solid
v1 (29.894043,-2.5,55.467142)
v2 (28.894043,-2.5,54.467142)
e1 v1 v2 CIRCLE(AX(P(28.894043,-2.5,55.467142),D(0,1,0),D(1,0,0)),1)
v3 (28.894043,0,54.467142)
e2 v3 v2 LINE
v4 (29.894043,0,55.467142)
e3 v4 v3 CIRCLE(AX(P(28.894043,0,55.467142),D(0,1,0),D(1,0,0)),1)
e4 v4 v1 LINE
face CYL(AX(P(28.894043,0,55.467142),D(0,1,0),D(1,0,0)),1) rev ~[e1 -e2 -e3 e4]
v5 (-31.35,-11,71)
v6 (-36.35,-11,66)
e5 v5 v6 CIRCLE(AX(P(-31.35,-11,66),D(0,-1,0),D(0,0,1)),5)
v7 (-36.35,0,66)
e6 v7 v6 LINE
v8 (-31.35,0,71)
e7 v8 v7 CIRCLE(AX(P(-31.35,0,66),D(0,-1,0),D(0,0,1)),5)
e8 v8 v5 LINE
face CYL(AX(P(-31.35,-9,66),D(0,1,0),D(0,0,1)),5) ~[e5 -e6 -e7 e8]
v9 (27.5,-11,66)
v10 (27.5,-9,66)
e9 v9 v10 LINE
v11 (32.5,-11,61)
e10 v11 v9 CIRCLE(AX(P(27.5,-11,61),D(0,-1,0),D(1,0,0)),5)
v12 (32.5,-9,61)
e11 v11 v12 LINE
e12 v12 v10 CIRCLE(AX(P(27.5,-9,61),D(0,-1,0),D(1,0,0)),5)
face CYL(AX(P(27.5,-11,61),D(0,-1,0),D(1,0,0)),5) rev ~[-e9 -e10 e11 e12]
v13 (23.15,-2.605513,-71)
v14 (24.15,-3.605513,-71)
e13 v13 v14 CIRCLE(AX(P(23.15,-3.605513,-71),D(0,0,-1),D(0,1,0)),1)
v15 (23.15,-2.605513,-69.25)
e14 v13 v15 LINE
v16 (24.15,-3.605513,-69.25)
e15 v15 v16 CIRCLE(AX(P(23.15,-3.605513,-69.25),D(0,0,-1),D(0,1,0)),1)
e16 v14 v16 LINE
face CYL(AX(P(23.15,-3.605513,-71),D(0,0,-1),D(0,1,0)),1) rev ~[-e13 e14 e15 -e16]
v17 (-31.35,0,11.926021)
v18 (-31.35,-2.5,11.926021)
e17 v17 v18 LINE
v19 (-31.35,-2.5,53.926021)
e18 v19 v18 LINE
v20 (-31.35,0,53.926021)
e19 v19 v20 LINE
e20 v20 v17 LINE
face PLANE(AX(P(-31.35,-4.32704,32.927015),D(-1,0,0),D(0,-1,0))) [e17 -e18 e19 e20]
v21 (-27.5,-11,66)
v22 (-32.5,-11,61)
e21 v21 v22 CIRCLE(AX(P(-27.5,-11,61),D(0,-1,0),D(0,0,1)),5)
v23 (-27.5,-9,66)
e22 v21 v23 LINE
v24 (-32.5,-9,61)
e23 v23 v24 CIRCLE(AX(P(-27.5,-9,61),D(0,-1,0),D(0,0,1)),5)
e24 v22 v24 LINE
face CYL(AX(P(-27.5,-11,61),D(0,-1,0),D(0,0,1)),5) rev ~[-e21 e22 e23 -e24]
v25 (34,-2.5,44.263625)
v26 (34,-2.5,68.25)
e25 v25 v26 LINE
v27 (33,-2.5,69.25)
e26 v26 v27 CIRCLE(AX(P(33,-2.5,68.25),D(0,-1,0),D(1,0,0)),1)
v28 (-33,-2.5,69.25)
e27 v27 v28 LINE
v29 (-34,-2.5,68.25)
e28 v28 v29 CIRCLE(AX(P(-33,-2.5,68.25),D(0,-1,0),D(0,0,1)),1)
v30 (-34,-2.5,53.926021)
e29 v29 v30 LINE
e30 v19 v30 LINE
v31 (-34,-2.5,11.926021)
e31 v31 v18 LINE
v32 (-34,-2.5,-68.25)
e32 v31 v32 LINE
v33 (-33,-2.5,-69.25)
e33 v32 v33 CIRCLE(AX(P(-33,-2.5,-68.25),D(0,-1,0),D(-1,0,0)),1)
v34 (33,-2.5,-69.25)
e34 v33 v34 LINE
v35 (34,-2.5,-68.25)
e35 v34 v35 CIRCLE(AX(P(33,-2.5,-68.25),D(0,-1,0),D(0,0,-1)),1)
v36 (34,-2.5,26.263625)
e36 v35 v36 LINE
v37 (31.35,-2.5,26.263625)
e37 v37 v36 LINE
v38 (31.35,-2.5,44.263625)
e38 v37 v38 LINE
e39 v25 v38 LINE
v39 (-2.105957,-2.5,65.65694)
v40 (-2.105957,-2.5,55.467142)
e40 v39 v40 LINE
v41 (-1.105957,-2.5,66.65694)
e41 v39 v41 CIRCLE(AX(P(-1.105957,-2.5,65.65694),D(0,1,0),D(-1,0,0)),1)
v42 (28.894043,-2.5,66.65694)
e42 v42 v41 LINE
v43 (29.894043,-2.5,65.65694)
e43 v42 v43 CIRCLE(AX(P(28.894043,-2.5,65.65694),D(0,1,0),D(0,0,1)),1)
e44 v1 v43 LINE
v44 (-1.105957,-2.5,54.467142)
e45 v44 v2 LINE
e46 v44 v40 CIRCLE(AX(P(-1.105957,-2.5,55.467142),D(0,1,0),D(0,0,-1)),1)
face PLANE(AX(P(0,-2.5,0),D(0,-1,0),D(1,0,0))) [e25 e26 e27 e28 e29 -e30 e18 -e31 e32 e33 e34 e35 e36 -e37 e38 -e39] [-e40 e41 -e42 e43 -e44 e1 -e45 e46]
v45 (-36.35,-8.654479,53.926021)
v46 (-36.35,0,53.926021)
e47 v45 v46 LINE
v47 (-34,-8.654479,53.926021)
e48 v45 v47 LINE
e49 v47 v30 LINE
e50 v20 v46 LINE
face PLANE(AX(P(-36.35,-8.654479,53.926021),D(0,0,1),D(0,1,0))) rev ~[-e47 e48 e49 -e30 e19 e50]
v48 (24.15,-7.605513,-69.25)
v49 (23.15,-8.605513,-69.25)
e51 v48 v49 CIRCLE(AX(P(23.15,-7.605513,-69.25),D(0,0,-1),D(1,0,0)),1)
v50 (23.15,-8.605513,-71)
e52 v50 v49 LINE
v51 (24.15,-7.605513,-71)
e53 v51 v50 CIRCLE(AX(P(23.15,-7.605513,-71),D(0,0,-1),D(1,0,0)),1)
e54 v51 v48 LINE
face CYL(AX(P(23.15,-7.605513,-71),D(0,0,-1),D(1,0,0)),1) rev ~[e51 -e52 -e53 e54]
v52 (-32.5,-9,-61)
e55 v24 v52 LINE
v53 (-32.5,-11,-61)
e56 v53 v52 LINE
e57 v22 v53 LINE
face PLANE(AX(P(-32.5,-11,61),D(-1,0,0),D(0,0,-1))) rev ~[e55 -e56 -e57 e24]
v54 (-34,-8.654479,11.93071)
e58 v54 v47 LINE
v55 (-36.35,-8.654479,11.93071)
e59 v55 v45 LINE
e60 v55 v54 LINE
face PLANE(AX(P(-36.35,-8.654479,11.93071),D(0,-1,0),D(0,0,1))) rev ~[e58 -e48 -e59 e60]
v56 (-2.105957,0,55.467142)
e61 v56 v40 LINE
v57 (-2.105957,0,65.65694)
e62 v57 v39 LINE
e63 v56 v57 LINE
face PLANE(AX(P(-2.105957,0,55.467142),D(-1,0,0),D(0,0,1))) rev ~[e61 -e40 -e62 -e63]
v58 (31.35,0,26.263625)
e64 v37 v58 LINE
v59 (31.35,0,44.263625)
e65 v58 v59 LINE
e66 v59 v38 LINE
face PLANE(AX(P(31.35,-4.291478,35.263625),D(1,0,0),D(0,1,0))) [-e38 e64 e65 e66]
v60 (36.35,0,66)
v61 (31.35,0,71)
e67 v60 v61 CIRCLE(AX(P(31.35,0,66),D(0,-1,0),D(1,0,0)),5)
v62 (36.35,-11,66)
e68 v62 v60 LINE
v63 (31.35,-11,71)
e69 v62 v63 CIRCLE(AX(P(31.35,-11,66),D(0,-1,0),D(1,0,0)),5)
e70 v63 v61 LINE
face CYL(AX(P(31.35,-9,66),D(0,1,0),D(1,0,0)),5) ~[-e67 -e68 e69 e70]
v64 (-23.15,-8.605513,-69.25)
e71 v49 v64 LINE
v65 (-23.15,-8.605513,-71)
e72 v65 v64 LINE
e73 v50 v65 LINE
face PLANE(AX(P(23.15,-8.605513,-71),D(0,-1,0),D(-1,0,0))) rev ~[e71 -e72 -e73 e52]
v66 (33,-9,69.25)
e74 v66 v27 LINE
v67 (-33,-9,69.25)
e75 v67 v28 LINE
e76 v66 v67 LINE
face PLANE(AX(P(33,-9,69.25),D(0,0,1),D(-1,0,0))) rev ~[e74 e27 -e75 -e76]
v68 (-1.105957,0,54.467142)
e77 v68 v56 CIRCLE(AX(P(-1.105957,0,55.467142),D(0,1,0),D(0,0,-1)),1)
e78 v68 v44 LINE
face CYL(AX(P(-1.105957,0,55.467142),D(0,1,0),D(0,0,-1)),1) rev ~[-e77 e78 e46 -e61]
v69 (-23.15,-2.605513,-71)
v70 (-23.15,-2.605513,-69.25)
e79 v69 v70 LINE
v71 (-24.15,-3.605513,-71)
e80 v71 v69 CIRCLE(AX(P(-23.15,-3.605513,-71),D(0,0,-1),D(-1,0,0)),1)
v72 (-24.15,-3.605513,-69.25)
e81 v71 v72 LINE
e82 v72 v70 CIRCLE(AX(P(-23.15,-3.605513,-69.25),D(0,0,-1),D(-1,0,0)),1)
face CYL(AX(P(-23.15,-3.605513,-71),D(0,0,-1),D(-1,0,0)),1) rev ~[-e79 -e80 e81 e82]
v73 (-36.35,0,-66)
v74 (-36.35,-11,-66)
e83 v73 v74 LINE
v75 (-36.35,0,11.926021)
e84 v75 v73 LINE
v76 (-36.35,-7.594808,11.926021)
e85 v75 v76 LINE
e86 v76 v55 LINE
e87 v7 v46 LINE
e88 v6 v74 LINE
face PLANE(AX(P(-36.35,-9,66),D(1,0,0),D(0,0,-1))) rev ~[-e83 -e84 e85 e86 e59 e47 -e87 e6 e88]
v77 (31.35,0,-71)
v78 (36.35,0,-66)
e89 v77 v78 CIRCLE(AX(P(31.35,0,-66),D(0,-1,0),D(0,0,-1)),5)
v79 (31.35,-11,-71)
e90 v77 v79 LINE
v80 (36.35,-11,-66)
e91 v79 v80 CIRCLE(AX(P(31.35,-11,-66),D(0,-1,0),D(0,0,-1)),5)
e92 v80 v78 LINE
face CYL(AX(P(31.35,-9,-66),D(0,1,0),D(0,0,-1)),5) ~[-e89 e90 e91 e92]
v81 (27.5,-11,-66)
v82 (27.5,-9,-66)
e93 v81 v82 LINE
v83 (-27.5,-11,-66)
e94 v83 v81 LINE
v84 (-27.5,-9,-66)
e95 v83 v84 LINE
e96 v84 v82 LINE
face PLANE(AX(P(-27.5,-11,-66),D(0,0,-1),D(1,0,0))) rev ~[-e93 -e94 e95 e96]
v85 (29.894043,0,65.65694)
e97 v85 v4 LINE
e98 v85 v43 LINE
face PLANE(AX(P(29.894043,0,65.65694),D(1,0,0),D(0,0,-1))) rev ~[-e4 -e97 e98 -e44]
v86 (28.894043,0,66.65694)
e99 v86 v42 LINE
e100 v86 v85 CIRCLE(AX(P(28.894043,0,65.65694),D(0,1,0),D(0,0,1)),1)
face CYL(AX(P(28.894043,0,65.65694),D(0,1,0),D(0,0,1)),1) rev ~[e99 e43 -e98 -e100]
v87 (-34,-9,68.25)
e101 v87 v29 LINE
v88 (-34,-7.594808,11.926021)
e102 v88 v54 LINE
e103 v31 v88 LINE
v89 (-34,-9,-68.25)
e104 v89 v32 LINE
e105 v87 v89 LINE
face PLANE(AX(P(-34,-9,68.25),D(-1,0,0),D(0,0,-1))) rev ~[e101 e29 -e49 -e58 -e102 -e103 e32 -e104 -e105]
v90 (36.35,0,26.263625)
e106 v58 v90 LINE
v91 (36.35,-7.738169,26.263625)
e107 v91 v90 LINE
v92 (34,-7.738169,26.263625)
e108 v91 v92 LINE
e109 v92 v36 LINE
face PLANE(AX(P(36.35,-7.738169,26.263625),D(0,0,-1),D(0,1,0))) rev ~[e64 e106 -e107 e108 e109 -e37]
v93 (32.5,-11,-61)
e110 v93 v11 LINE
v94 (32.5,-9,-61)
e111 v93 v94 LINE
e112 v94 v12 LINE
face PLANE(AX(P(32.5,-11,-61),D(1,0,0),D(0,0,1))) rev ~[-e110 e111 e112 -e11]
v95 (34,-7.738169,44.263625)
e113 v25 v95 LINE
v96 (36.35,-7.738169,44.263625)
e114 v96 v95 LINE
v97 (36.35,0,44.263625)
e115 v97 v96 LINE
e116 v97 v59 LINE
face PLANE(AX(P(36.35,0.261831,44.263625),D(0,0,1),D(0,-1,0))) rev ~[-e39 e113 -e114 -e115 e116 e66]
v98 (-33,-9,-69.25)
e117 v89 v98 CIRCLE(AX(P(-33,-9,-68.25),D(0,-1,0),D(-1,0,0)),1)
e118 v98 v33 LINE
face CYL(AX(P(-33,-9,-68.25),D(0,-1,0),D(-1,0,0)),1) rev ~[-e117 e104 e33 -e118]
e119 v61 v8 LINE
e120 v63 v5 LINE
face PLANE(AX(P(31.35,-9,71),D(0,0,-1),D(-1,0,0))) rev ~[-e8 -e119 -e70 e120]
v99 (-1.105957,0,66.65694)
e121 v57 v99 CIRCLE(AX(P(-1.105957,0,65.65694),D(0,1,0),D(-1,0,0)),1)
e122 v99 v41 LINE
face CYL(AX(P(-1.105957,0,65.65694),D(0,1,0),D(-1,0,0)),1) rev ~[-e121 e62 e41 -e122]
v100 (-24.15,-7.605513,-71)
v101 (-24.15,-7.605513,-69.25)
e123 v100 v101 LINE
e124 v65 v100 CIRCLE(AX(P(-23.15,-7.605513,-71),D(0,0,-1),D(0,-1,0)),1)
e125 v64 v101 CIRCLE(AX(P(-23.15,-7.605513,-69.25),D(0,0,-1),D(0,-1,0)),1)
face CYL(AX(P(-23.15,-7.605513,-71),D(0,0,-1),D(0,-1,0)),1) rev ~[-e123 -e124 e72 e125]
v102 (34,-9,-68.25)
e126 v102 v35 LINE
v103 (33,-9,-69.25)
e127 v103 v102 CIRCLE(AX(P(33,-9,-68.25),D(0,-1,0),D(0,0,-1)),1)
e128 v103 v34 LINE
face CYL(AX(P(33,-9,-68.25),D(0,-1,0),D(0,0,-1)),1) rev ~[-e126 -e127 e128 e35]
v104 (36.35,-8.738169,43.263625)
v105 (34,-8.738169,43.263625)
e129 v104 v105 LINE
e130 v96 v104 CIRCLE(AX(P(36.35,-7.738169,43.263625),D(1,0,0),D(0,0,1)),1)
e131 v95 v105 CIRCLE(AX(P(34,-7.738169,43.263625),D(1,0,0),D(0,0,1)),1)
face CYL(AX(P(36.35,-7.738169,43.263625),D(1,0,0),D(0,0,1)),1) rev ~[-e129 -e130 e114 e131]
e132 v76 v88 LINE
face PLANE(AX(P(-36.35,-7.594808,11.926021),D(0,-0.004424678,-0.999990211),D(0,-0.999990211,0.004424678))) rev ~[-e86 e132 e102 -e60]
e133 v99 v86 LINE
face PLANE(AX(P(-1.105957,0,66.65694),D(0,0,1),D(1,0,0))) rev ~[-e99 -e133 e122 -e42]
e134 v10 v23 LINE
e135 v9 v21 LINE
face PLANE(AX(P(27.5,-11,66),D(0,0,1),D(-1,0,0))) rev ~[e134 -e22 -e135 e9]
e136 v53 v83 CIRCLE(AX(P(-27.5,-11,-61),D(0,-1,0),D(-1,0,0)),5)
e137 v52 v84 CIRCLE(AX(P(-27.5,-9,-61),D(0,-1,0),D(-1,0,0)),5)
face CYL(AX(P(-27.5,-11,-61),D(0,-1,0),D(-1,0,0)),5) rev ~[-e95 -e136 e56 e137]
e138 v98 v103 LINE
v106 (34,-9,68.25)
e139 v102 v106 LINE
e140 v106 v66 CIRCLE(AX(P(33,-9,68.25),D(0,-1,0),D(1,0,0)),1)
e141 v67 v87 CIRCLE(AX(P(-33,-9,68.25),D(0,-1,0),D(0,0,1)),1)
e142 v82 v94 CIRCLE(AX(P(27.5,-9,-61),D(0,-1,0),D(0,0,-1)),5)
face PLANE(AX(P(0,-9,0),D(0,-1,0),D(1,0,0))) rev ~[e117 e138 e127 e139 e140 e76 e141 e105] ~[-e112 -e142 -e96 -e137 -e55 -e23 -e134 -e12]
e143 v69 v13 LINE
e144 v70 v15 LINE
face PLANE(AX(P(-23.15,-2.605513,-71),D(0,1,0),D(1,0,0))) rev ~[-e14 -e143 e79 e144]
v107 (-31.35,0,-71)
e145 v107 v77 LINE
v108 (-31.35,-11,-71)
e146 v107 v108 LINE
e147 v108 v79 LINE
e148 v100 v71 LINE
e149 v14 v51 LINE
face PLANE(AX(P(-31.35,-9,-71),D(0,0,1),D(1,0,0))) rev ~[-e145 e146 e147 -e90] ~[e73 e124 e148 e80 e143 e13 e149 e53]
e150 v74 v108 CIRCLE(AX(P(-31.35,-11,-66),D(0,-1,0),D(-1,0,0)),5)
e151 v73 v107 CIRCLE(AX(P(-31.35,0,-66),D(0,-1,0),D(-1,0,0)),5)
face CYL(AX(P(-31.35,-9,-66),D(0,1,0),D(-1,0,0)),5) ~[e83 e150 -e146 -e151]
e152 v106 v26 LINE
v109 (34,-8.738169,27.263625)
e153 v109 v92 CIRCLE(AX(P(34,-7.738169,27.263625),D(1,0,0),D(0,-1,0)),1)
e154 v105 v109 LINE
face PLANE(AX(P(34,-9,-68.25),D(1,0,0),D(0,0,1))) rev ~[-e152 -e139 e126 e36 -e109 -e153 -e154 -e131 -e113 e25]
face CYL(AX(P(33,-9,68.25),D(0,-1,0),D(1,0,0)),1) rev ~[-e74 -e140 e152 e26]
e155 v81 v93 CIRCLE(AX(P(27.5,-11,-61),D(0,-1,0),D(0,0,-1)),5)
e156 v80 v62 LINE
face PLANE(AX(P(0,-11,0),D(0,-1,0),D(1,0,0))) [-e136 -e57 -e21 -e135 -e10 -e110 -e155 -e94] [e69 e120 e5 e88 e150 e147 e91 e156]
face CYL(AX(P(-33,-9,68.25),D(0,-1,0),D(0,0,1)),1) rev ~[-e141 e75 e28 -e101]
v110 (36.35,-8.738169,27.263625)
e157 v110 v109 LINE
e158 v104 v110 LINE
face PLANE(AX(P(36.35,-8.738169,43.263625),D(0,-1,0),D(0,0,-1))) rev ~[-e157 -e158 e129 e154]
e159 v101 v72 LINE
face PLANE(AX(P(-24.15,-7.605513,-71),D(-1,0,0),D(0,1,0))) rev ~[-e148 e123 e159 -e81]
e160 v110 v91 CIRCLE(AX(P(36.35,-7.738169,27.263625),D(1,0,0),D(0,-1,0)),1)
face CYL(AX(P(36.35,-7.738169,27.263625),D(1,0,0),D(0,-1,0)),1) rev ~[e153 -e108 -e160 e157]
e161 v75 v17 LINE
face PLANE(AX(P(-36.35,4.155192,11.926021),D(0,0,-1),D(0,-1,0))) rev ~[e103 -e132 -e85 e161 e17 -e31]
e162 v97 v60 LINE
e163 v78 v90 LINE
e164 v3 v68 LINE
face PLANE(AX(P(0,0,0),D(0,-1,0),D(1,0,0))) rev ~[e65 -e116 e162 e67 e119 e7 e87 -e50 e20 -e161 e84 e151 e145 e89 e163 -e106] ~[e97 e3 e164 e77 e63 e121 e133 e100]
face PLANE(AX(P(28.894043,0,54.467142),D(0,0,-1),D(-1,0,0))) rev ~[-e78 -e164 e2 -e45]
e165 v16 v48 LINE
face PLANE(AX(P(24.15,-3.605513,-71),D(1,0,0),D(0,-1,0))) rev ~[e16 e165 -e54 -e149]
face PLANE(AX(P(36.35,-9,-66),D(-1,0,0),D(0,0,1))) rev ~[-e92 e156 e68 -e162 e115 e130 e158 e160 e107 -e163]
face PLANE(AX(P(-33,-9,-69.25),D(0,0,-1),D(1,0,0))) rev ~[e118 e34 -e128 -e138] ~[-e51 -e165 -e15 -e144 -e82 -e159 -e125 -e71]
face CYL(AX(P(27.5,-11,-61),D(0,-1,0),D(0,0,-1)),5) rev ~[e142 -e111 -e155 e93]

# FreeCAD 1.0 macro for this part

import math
import FreeCAD as App
import Part
import Sketcher
from FreeCAD import Vector
Q = App.Units.Quantity

doc = App.newDocument("Part")
body = doc.addObject("PartDesign::Body", "Body")

sketch1 = body.newObject("Sketcher::SketchObject", "Sketch")
sketch1.AttachmentSupport = (doc.getObject("XZ_Plane"), [""])
sketch1.MapMode = "FlatFace"
sketch1.addGeometry(Part.LineSegment(Vector(31.35, 71, 0), Vector(-31.35, 71, 0)), False)
sketch1.addGeometry(Part.ArcOfCircle(Part.Circle(Vector(-31.35, 66, 0), Vector(0, 0, 1), 5), math.radians(90), math.radians(180)), False)
sketch1.addGeometry(Part.LineSegment(Vector(-36.35, 66, 0), Vector(-36.35, -66, 0)), False)
sketch1.addGeometry(Part.ArcOfCircle(Part.Circle(Vector(-31.35, -66, 0), Vector(0, 0, 1), 5), math.radians(180), math.radians(270)), False)
sketch1.addGeometry(Part.LineSegment(Vector(-31.35, -71, 0), Vector(31.35, -71, 0)), False)
sketch1.addGeometry(Part.ArcOfCircle(Part.Circle(Vector(31.35, -66, 0), Vector(0, 0, 1), 5), math.radians(-90), math.radians(0)), False)
sketch1.addGeometry(Part.LineSegment(Vector(36.35, -66, 0), Vector(36.35, 66, 0)), False)
sketch1.addGeometry(Part.ArcOfCircle(Part.Circle(Vector(31.35, 66, 0), Vector(0, 0, 1), 5), math.radians(0), math.radians(90)), False)
sketch1.addConstraint(Sketcher.Constraint("Tangent", 0, 2, 1, 1))
sketch1.addConstraint(Sketcher.Constraint("Tangent", 1, 2, 2, 1))
sketch1.addConstraint(Sketcher.Constraint("Tangent", 2, 2, 3, 1))
sketch1.addConstraint(Sketcher.Constraint("Tangent", 3, 2, 4, 1))
sketch1.addConstraint(Sketcher.Constraint("Tangent", 4, 2, 5, 1))
sketch1.addConstraint(Sketcher.Constraint("Tangent", 5, 2, 6, 1))
sketch1.addConstraint(Sketcher.Constraint("Tangent", 6, 2, 7, 1))
sketch1.addConstraint(Sketcher.Constraint("Tangent", 7, 2, 0, 1))
sketch1.addConstraint(Sketcher.Constraint("Horizontal", 0))
sketch1.addConstraint(Sketcher.Constraint("Vertical", 2))
sketch1.addConstraint(Sketcher.Constraint("Horizontal", 4))
sketch1.addConstraint(Sketcher.Constraint("Vertical", 6))
sketch1.addConstraint(Sketcher.Constraint("Equal", 1, 3))
sketch1.addConstraint(Sketcher.Constraint("Equal", 3, 5))
sketch1.addConstraint(Sketcher.Constraint("Equal", 5, 7))
sketch1.addConstraint(Sketcher.Constraint("Symmetric", 1, 3, 5, 3, -1, 1))
sketch1.addConstraint(Sketcher.Constraint("Radius", 1, Q("5 mm")))
sketch1.addConstraint(Sketcher.Constraint("DistanceY", 2, 2, 2, 1, Q("132 mm")))
sketch1.addConstraint(Sketcher.Constraint("DistanceX", 0, 2, 0, 1, Q("62.7 mm")))
pad1 = body.newObject("PartDesign::Pad", "Pad")
pad1.Profile = sketch1
pad1.Length = 9

sketch2 = body.newObject("Sketcher::SketchObject", "Sketch001")
sketch2.AttachmentSupport = (doc.getObject("XZ_Plane"), [""])
sketch2.MapMode = "FlatFace"
sketch2.AttachmentOffset = App.Placement(Vector(0, 0, 9), App.Rotation())
sketch2.addGeometry(Part.LineSegment(Vector(33, 69.25, 0), Vector(-33, 69.25, 0)), False)
sketch2.addGeometry(Part.ArcOfCircle(Part.Circle(Vector(-33, 68.25, 0), Vector(0, 0, 1), 1), math.radians(90), math.radians(180)), False)
sketch2.addGeometry(Part.LineSegment(Vector(-34, 68.25, 0), Vector(-34, -68.25, 0)), False)
sketch2.addGeometry(Part.ArcOfCircle(Part.Circle(Vector(-33, -68.25, 0), Vector(0, 0, 1), 1), math.radians(180), math.radians(270)), False)
sketch2.addGeometry(Part.LineSegment(Vector(-33, -69.25, 0), Vector(33, -69.25, 0)), False)
sketch2.addGeometry(Part.ArcOfCircle(Part.Circle(Vector(33, -68.25, 0), Vector(0, 0, 1), 1), math.radians(-90), math.radians(0)), False)
sketch2.addGeometry(Part.LineSegment(Vector(34, -68.25, 0), Vector(34, 68.25, 0)), False)
sketch2.addGeometry(Part.ArcOfCircle(Part.Circle(Vector(33, 68.25, 0), Vector(0, 0, 1), 1), math.radians(0), math.radians(90)), False)
sketch2.addConstraint(Sketcher.Constraint("Tangent", 0, 2, 1, 1))
sketch2.addConstraint(Sketcher.Constraint("Tangent", 1, 2, 2, 1))
sketch2.addConstraint(Sketcher.Constraint("Tangent", 2, 2, 3, 1))
sketch2.addConstraint(Sketcher.Constraint("Tangent", 3, 2, 4, 1))
sketch2.addConstraint(Sketcher.Constraint("Tangent", 4, 2, 5, 1))
sketch2.addConstraint(Sketcher.Constraint("Tangent", 5, 2, 6, 1))
sketch2.addConstraint(Sketcher.Constraint("Tangent", 6, 2, 7, 1))
sketch2.addConstraint(Sketcher.Constraint("Tangent", 7, 2, 0, 1))
sketch2.addConstraint(Sketcher.Constraint("Horizontal", 0))
sketch2.addConstraint(Sketcher.Constraint("Vertical", 2))
sketch2.addConstraint(Sketcher.Constraint("Horizontal", 4))
sketch2.addConstraint(Sketcher.Constraint("Vertical", 6))
sketch2.addConstraint(Sketcher.Constraint("Equal", 1, 3))
sketch2.addConstraint(Sketcher.Constraint("Equal", 3, 5))
sketch2.addConstraint(Sketcher.Constraint("Equal", 5, 7))
sketch2.addConstraint(Sketcher.Constraint("Symmetric", 1, 3, 5, 3, -1, 1))
sketch2.addConstraint(Sketcher.Constraint("Radius", 1, Q("1 mm")))
sketch2.addConstraint(Sketcher.Constraint("DistanceX", 0, 2, 0, 1, Q("66 mm")))
sketch2.addConstraint(Sketcher.Constraint("DistanceY", 2, 2, 2, 1, Q("136.5 mm")))
pocket1 = body.newObject("PartDesign::Pocket", "Pocket")
pocket1.Profile = sketch2
pocket1.Length = 6.5

sketch3 = body.newObject("Sketcher::SketchObject", "Sketch002")
sketch3.AttachmentSupport = (doc.getObject("YZ_Plane"), [""])
sketch3.MapMode = "FlatFace"
sketch3.AttachmentOffset = App.Placement(Vector(0, 0, 36.35), App.Rotation())
sketch3.addGeometry(Part.ArcOfCircle(Part.Circle(Vector(-7.738169, 43.263625, 0), Vector(0, 0, 1), 1), math.radians(90), math.radians(180)), False)
sketch3.addGeometry(Part.LineSegment(Vector(-8.738169, 43.263625, 0), Vector(-8.738169, 27.263625, 0)), False)
sketch3.addGeometry(Part.ArcOfCircle(Part.Circle(Vector(-7.738169, 27.263625, 0), Vector(0, 0, 1), 1), math.radians(180), math.radians(270)), False)
sketch3.addGeometry(Part.LineSegment(Vector(-7.738169, 26.263625, 0), Vector(0.261831, 26.263625, 0)), False)
sketch3.addGeometry(Part.ArcOfCircle(Part.Circle(Vector(0.261831, 27.263625, 0), Vector(0, 0, 1), 1), math.radians(-90), math.radians(0)), False)
sketch3.addGeometry(Part.LineSegment(Vector(1.261831, 27.263625, 0), Vector(1.261831, 43.263625, 0)), False)
sketch3.addGeometry(Part.ArcOfCircle(Part.Circle(Vector(0.261831, 43.263625, 0), Vector(0, 0, 1), 1), math.radians(0), math.radians(90)), False)
sketch3.addGeometry(Part.LineSegment(Vector(0.261831, 44.263625, 0), Vector(-7.738169, 44.263625, 0)), False)
sketch3.addConstraint(Sketcher.Constraint("Tangent", 0, 2, 1, 1))
sketch3.addConstraint(Sketcher.Constraint("Tangent", 1, 2, 2, 1))
sketch3.addConstraint(Sketcher.Constraint("Tangent", 2, 2, 3, 1))
sketch3.addConstraint(Sketcher.Constraint("Tangent", 3, 2, 4, 1))
sketch3.addConstraint(Sketcher.Constraint("Tangent", 4, 2, 5, 1))
sketch3.addConstraint(Sketcher.Constraint("Tangent", 5, 2, 6, 1))
sketch3.addConstraint(Sketcher.Constraint("Tangent", 6, 2, 7, 1))
sketch3.addConstraint(Sketcher.Constraint("Tangent", 7, 2, 0, 1))
sketch3.addConstraint(Sketcher.Constraint("Vertical", 1))
sketch3.addConstraint(Sketcher.Constraint("Horizontal", 3))
sketch3.addConstraint(Sketcher.Constraint("Vertical", 5))
sketch3.addConstraint(Sketcher.Constraint("Horizontal", 7))
sketch3.addConstraint(Sketcher.Constraint("Equal", 0, 2))
sketch3.addConstraint(Sketcher.Constraint("Equal", 2, 4))
sketch3.addConstraint(Sketcher.Constraint("Equal", 4, 6))
sketch3.addConstraint(Sketcher.Constraint("Radius", 0, Q("1 mm")))
sketch3.addConstraint(Sketcher.Constraint("DistanceX", 3, 1, 3, 2, Q("8 mm")))
sketch3.addConstraint(Sketcher.Constraint("DistanceY", 1, 2, 1, 1, Q("16 mm")))
sketch3.addConstraint(Sketcher.Constraint("DistanceX", 0, 3, -1, 1, Q("7.738169 mm")))
sketch3.addConstraint(Sketcher.Constraint("DistanceY", -1, 1, 0, 3, Q("43.263625 mm")))
pocket2 = body.newObject("PartDesign::Pocket", "Pocket001")
pocket2.Profile = sketch3
pocket2.Length = 5

sketch4 = body.newObject("Sketcher::SketchObject", "Sketch003")
sketch4.AttachmentSupport = (doc.getObject("YZ_Plane"), [""])
sketch4.MapMode = "FlatFace"
sketch4.AttachmentOffset = App.Placement(Vector(0, 0, -36.35), App.Rotation())
sketch4.addGeometry(Part.LineSegment(Vector(-7.594808, 11.926021, 0), Vector(-8.654479, 11.93071, 0)), False)
sketch4.addGeometry(Part.LineSegment(Vector(-8.654479, 11.93071, 0), Vector(-8.654479, 53.926021, 0)), False)
sketch4.addGeometry(Part.LineSegment(Vector(-8.654479, 53.926021, 0), Vector(4.223771, 53.926021, 0)), False)
sketch4.addGeometry(Part.ArcOfCircle(Part.Circle(Vector(4.155192, 52.926021, 0), Vector(0, 0, 1), 1.002349), math.radians(-3.923137), math.radians(86.076863)), False)
sketch4.addGeometry(Part.LineSegment(Vector(5.155192, 52.857442, 0), Vector(5.155192, 12.926021, 0)), False)
sketch4.addGeometry(Part.ArcOfCircle(Part.Circle(Vector(4.155192, 12.926021, 0), Vector(0, 0, 1), 1), math.radians(-90), math.radians(0)), False)
sketch4.addGeometry(Part.LineSegment(Vector(4.155192, 11.926021, 0), Vector(-7.594808, 11.926021, 0)), False)
sketch4.addConstraint(Sketcher.Constraint("Coincident", 0, 2, 1, 1))
sketch4.addConstraint(Sketcher.Constraint("Coincident", 1, 2, 2, 1))
sketch4.addConstraint(Sketcher.Constraint("Coincident", 2, 2, 3, 2))
sketch4.addConstraint(Sketcher.Constraint("Coincident", 3, 1, 4, 1))
sketch4.addConstraint(Sketcher.Constraint("Tangent", 4, 2, 5, 2))
sketch4.addConstraint(Sketcher.Constraint("Tangent", 5, 1, 6, 1))
sketch4.addConstraint(Sketcher.Constraint("Coincident", 6, 2, 0, 1))
sketch4.addConstraint(Sketcher.Constraint("Vertical", 1))
sketch4.addConstraint(Sketcher.Constraint("Horizontal", 2))
sketch4.addConstraint(Sketcher.Constraint("Vertical", 4))
sketch4.addConstraint(Sketcher.Constraint("Horizontal", 6))
sketch4.addConstraint(Sketcher.Constraint("Vertical", 3, 3, 5, 3))
sketch4.addConstraint(Sketcher.Constraint("Radius", 5, Q("1 mm")))
sketch4.addConstraint(Sketcher.Constraint("DistanceY", 5, 3, 3, 3, Q("40 mm")))
sketch4.addConstraint(Sketcher.Constraint("DistanceY", 3, 3, 1, 2, Q("1 mm")))
sketch4.addConstraint(Sketcher.Constraint("DistanceX", 6, 2, 6, 1, Q("11.75 mm")))
sketch4.addConstraint(Sketcher.Constraint("Radius", 3, Q("1.002349 mm")))
sketch4.addConstraint(Sketcher.Constraint("DistanceX", 2, 1, 2, 2, Q("12.87825 mm")))
sketch4.addConstraint(Sketcher.Constraint("DistanceY", 1, 1, 1, 2, Q("41.995311 mm")))
sketch4.addConstraint(Sketcher.Constraint("DistanceX", -1, 1, 3, 3, Q("4.155192 mm")))
sketch4.addConstraint(Sketcher.Constraint("DistanceY", -1, 1, 3, 3, Q("52.926021 mm")))
pocket3 = body.newObject("PartDesign::Pocket", "Pocket002")
pocket3.Profile = sketch4
pocket3.Length = 5
pocket3.Reversed = True

sketch5 = body.newObject("Sketcher::SketchObject", "Sketch004")
sketch5.AttachmentSupport = (doc.getObject("XY_Plane"), [""])
sketch5.MapMode = "FlatFace"
sketch5.AttachmentOffset = App.Placement(Vector(0, 0, -71), App.Rotation())
sketch5.addGeometry(Part.LineSegment(Vector(-23.15, -2.605513, 0), Vector(23.15, -2.605513, 0)), False)
sketch5.addGeometry(Part.ArcOfCircle(Part.Circle(Vector(23.15, -3.605513, 0), Vector(0, 0, 1), 1), math.radians(0), math.radians(90)), False)
sketch5.addGeometry(Part.LineSegment(Vector(24.15, -3.605513, 0), Vector(24.15, -7.605513, 0)), False)
sketch5.addGeometry(Part.ArcOfCircle(Part.Circle(Vector(23.15, -7.605513, 0), Vector(0, 0, 1), 1), math.radians(-90), math.radians(0)), False)
sketch5.addGeometry(Part.LineSegment(Vector(23.15, -8.605513, 0), Vector(-23.15, -8.605513, 0)), False)
sketch5.addGeometry(Part.ArcOfCircle(Part.Circle(Vector(-23.15, -7.605513, 0), Vector(0, 0, 1), 1), math.radians(180), math.radians(270)), False)
sketch5.addGeometry(Part.LineSegment(Vector(-24.15, -7.605513, 0), Vector(-24.15, -3.605513, 0)), False)
sketch5.addGeometry(Part.ArcOfCircle(Part.Circle(Vector(-23.15, -3.605513, 0), Vector(0, 0, 1), 1), math.radians(90), math.radians(180)), False)
sketch5.addConstraint(Sketcher.Constraint("Tangent", 0, 2, 1, 2))
sketch5.addConstraint(Sketcher.Constraint("Tangent", 1, 1, 2, 1))
sketch5.addConstraint(Sketcher.Constraint("Tangent", 2, 2, 3, 2))
sketch5.addConstraint(Sketcher.Constraint("Tangent", 3, 1, 4, 1))
sketch5.addConstraint(Sketcher.Constraint("Tangent", 4, 2, 5, 2))
sketch5.addConstraint(Sketcher.Constraint("Tangent", 5, 1, 6, 1))
sketch5.addConstraint(Sketcher.Constraint("Tangent", 6, 2, 7, 2))
sketch5.addConstraint(Sketcher.Constraint("Tangent", 7, 1, 0, 1))
sketch5.addConstraint(Sketcher.Constraint("Horizontal", 0))
sketch5.addConstraint(Sketcher.Constraint("Vertical", 2))
sketch5.addConstraint(Sketcher.Constraint("Horizontal", 4))
sketch5.addConstraint(Sketcher.Constraint("Vertical", 6))
sketch5.addConstraint(Sketcher.Constraint("Equal", 1, 3))
sketch5.addConstraint(Sketcher.Constraint("Equal", 3, 5))
sketch5.addConstraint(Sketcher.Constraint("Equal", 5, 7))
sketch5.addConstraint(Sketcher.Constraint("Radius", 1, Q("1 mm")))
sketch5.addConstraint(Sketcher.Constraint("DistanceY", 2, 2, 2, 1, Q("4 mm")))
sketch5.addConstraint(Sketcher.Constraint("DistanceX", 0, 1, 0, 2, Q("46.3 mm")))
sketch5.addConstraint(Sketcher.Constraint("DistanceX", -1, 1, 1, 3, Q("23.15 mm")))
sketch5.addConstraint(Sketcher.Constraint("DistanceY", 1, 3, -1, 1, Q("3.605513 mm")))
pocket4 = body.newObject("PartDesign::Pocket", "Pocket003")
pocket4.Profile = sketch5
pocket4.Length = 11.3
pocket4.Reversed = True

sketch6 = body.newObject("Sketcher::SketchObject", "Sketch005")
sketch6.AttachmentSupport = (doc.getObject("XZ_Plane"), [""])
sketch6.MapMode = "FlatFace"
sketch6.addGeometry(Part.ArcOfCircle(Part.Circle(Vector(28.894043, 55.467142, 0), Vector(0, 0, 1), 1), math.radians(-90), math.radians(0)), False)
sketch6.addGeometry(Part.LineSegment(Vector(28.894043, 54.467142, 0), Vector(-1.105957, 54.467142, 0)), False)
sketch6.addGeometry(Part.ArcOfCircle(Part.Circle(Vector(-1.105957, 55.467142, 0), Vector(0, 0, 1), 1), math.radians(180), math.radians(270)), False)
sketch6.addGeometry(Part.LineSegment(Vector(-2.105957, 55.467142, 0), Vector(-2.105957, 65.65694, 0)), False)
sketch6.addGeometry(Part.ArcOfCircle(Part.Circle(Vector(-1.105957, 65.65694, 0), Vector(0, 0, 1), 1), math.radians(90), math.radians(180)), False)
sketch6.addGeometry(Part.LineSegment(Vector(-1.105957, 66.65694, 0), Vector(28.894043, 66.65694, 0)), False)
sketch6.addGeometry(Part.ArcOfCircle(Part.Circle(Vector(28.894043, 65.65694, 0), Vector(0, 0, 1), 1), math.radians(0), math.radians(90)), False)
sketch6.addGeometry(Part.LineSegment(Vector(29.894043, 65.65694, 0), Vector(29.894043, 55.467142, 0)), False)
sketch6.addConstraint(Sketcher.Constraint("Tangent", 0, 1, 1, 1))
sketch6.addConstraint(Sketcher.Constraint("Tangent", 1, 2, 2, 2))
sketch6.addConstraint(Sketcher.Constraint("Tangent", 2, 1, 3, 1))
sketch6.addConstraint(Sketcher.Constraint("Tangent", 3, 2, 4, 2))
sketch6.addConstraint(Sketcher.Constraint("Tangent", 4, 1, 5, 1))
sketch6.addConstraint(Sketcher.Constraint("Tangent", 5, 2, 6, 2))
sketch6.addConstraint(Sketcher.Constraint("Tangent", 6, 1, 7, 1))
sketch6.addConstraint(Sketcher.Constraint("Tangent", 7, 2, 0, 2))
sketch6.addConstraint(Sketcher.Constraint("Horizontal", 1))
sketch6.addConstraint(Sketcher.Constraint("Vertical", 3))
sketch6.addConstraint(Sketcher.Constraint("Horizontal", 5))
sketch6.addConstraint(Sketcher.Constraint("Vertical", 7))
sketch6.addConstraint(Sketcher.Constraint("Equal", 0, 2))
sketch6.addConstraint(Sketcher.Constraint("Equal", 2, 4))
sketch6.addConstraint(Sketcher.Constraint("Equal", 4, 6))
sketch6.addConstraint(Sketcher.Constraint("Radius", 0, Q("1 mm")))
sketch6.addConstraint(Sketcher.Constraint("DistanceX", 1, 2, 1, 1, Q("30 mm")))
sketch6.addConstraint(Sketcher.Constraint("DistanceY", 3, 1, 3, 2, Q("10.189798 mm")))
sketch6.addConstraint(Sketcher.Constraint("DistanceY", -1, 1, 0, 3, Q("55.467142 mm")))
sketch6.addConstraint(Sketcher.Constraint("DistanceX", -1, 1, 0, 3, Q("28.894043 mm")))
pocket5 = body.newObject("PartDesign::Pocket", "Pocket004")
pocket5.Profile = sketch6
pocket5.Length = 3
pocket5.Reversed = True

sketch7 = body.newObject("Sketcher::SketchObject", "Sketch006")
sketch7.AttachmentSupport = (doc.getObject("XZ_Plane"), [""])
sketch7.MapMode = "FlatFace"
sketch7.AttachmentOffset = App.Placement(Vector(0, 0, 9), App.Rotation())
sketch7.addGeometry(Part.LineSegment(Vector(31.35, 71, 0), Vector(-31.35, 71, 0)), False)
sketch7.addGeometry(Part.ArcOfCircle(Part.Circle(Vector(-31.35, 66, 0), Vector(0, 0, 1), 5), math.radians(90), math.radians(180)), False)
sketch7.addGeometry(Part.LineSegment(Vector(-36.35, 66, 0), Vector(-36.35, -66, 0)), False)
sketch7.addGeometry(Part.ArcOfCircle(Part.Circle(Vector(-31.35, -66, 0), Vector(0, 0, 1), 5), math.radians(180), math.radians(270)), False)
sketch7.addGeometry(Part.LineSegment(Vector(-31.35, -71, 0), Vector(31.35, -71, 0)), False)
sketch7.addGeometry(Part.ArcOfCircle(Part.Circle(Vector(31.35, -66, 0), Vector(0, 0, 1), 5), math.radians(-90), math.radians(0)), False)
sketch7.addGeometry(Part.LineSegment(Vector(36.35, -66, 0), Vector(36.35, 66, 0)), False)
sketch7.addGeometry(Part.ArcOfCircle(Part.Circle(Vector(31.35, 66, 0), Vector(0, 0, 1), 5), math.radians(0), math.radians(90)), False)
sketch7.addConstraint(Sketcher.Constraint("Tangent", 0, 2, 1, 1))
sketch7.addConstraint(Sketcher.Constraint("Tangent", 1, 2, 2, 1))
sketch7.addConstraint(Sketcher.Constraint("Tangent", 2, 2, 3, 1))
sketch7.addConstraint(Sketcher.Constraint("Tangent", 3, 2, 4, 1))
sketch7.addConstraint(Sketcher.Constraint("Tangent", 4, 2, 5, 1))
sketch7.addConstraint(Sketcher.Constraint("Tangent", 5, 2, 6, 1))
sketch7.addConstraint(Sketcher.Constraint("Tangent", 6, 2, 7, 1))
sketch7.addConstraint(Sketcher.Constraint("Tangent", 7, 2, 0, 1))
sketch7.addConstraint(Sketcher.Constraint("Horizontal", 0))
sketch7.addConstraint(Sketcher.Constraint("Vertical", 2))
sketch7.addConstraint(Sketcher.Constraint("Horizontal", 4))
sketch7.addConstraint(Sketcher.Constraint("Vertical", 6))
sketch7.addConstraint(Sketcher.Constraint("Equal", 1, 3))
sketch7.addConstraint(Sketcher.Constraint("Equal", 3, 5))
sketch7.addConstraint(Sketcher.Constraint("Equal", 5, 7))
sketch7.addConstraint(Sketcher.Constraint("Symmetric", 1, 3, 5, 3, -1, 1))
sketch7.addConstraint(Sketcher.Constraint("Radius", 1, Q("5 mm")))
sketch7.addConstraint(Sketcher.Constraint("DistanceY", 2, 2, 2, 1, Q("132 mm")))
sketch7.addConstraint(Sketcher.Constraint("DistanceX", 0, 2, 0, 1, Q("62.7 mm")))
pad2 = body.newObject("PartDesign::Pad", "Pad001")
pad2.Profile = sketch7
pad2.Length = 2

sketch8 = body.newObject("Sketcher::SketchObject", "Sketch007")
sketch8.AttachmentSupport = (doc.getObject("XZ_Plane"), [""])
sketch8.MapMode = "FlatFace"
sketch8.AttachmentOffset = App.Placement(Vector(0, 0, 11), App.Rotation())
sketch8.addGeometry(Part.LineSegment(Vector(27.5, 66, 0), Vector(-27.5, 66, 0)), False)
sketch8.addGeometry(Part.ArcOfCircle(Part.Circle(Vector(-27.5, 61, 0), Vector(0, 0, 1), 5), math.radians(90), math.radians(180)), False)
sketch8.addGeometry(Part.LineSegment(Vector(-32.5, 61, 0), Vector(-32.5, -61, 0)), False)
sketch8.addGeometry(Part.ArcOfCircle(Part.Circle(Vector(-27.5, -61, 0), Vector(0, 0, 1), 5), math.radians(180), math.radians(270)), False)
sketch8.addGeometry(Part.LineSegment(Vector(-27.5, -66, 0), Vector(27.5, -66, 0)), False)
sketch8.addGeometry(Part.ArcOfCircle(Part.Circle(Vector(27.5, -61, 0), Vector(0, 0, 1), 5), math.radians(-90), math.radians(0)), False)
sketch8.addGeometry(Part.LineSegment(Vector(32.5, -61, 0), Vector(32.5, 61, 0)), False)
sketch8.addGeometry(Part.ArcOfCircle(Part.Circle(Vector(27.5, 61, 0), Vector(0, 0, 1), 5), math.radians(0), math.radians(90)), False)
sketch8.addConstraint(Sketcher.Constraint("Tangent", 0, 2, 1, 1))
sketch8.addConstraint(Sketcher.Constraint("Tangent", 1, 2, 2, 1))
sketch8.addConstraint(Sketcher.Constraint("Tangent", 2, 2, 3, 1))
sketch8.addConstraint(Sketcher.Constraint("Tangent", 3, 2, 4, 1))
sketch8.addConstraint(Sketcher.Constraint("Tangent", 4, 2, 5, 1))
sketch8.addConstraint(Sketcher.Constraint("Tangent", 5, 2, 6, 1))
sketch8.addConstraint(Sketcher.Constraint("Tangent", 6, 2, 7, 1))
sketch8.addConstraint(Sketcher.Constraint("Tangent", 7, 2, 0, 1))
sketch8.addConstraint(Sketcher.Constraint("Horizontal", 0))
sketch8.addConstraint(Sketcher.Constraint("Vertical", 2))
sketch8.addConstraint(Sketcher.Constraint("Horizontal", 4))
sketch8.addConstraint(Sketcher.Constraint("Vertical", 6))
sketch8.addConstraint(Sketcher.Constraint("Equal", 1, 3))
sketch8.addConstraint(Sketcher.Constraint("Equal", 3, 5))
sketch8.addConstraint(Sketcher.Constraint("Equal", 5, 7))
sketch8.addConstraint(Sketcher.Constraint("Symmetric", 1, 3, 5, 3, -1, 1))
sketch8.addConstraint(Sketcher.Constraint("Radius", 1, Q("5 mm")))
sketch8.addConstraint(Sketcher.Constraint("DistanceX", 0, 2, 0, 1, Q("55 mm")))
sketch8.addConstraint(Sketcher.Constraint("DistanceY", 2, 2, 2, 1, Q("122 mm")))
pocket6 = body.newObject("PartDesign::Pocket", "Pocket005")
pocket6.Profile = sketch8
pocket6.Length = 2

doc.recompute()
